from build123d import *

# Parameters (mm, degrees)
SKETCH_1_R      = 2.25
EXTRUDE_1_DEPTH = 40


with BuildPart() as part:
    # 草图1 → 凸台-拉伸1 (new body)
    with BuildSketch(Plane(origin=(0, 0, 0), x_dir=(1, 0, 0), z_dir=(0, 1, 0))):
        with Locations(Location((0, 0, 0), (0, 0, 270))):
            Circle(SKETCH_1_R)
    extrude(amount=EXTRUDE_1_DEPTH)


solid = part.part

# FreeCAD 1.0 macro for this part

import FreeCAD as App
import Part
import Sketcher
from FreeCAD import Vector
Q = App.Units.Quantity

doc = App.newDocument("Part")
body = doc.addObject("PartDesign::Body", "Body")

sketch1 = body.newObject("Sketcher::SketchObject", "Sketch")
sketch1.AttachmentSupport = (doc.getObject("XZ_Plane"), [""])
sketch1.MapMode = "FlatFace"
sketch1.addGeometry(Part.Circle(Vector(0, 0, 0), Vector(0, 0, 1), 2.2), False)
sketch1.addConstraint(Sketcher.Constraint("Coincident", 0, 3, -1, 1))
sketch1.addConstraint(Sketcher.Constraint("Diameter", 0, Q("4.5 mm")))
pad1 = body.newObject("PartDesign::Pad", "Pad")
pad1.Profile = sketch1
pad1.Length = 40
pad1.Reversed = True

doc.recompute()
